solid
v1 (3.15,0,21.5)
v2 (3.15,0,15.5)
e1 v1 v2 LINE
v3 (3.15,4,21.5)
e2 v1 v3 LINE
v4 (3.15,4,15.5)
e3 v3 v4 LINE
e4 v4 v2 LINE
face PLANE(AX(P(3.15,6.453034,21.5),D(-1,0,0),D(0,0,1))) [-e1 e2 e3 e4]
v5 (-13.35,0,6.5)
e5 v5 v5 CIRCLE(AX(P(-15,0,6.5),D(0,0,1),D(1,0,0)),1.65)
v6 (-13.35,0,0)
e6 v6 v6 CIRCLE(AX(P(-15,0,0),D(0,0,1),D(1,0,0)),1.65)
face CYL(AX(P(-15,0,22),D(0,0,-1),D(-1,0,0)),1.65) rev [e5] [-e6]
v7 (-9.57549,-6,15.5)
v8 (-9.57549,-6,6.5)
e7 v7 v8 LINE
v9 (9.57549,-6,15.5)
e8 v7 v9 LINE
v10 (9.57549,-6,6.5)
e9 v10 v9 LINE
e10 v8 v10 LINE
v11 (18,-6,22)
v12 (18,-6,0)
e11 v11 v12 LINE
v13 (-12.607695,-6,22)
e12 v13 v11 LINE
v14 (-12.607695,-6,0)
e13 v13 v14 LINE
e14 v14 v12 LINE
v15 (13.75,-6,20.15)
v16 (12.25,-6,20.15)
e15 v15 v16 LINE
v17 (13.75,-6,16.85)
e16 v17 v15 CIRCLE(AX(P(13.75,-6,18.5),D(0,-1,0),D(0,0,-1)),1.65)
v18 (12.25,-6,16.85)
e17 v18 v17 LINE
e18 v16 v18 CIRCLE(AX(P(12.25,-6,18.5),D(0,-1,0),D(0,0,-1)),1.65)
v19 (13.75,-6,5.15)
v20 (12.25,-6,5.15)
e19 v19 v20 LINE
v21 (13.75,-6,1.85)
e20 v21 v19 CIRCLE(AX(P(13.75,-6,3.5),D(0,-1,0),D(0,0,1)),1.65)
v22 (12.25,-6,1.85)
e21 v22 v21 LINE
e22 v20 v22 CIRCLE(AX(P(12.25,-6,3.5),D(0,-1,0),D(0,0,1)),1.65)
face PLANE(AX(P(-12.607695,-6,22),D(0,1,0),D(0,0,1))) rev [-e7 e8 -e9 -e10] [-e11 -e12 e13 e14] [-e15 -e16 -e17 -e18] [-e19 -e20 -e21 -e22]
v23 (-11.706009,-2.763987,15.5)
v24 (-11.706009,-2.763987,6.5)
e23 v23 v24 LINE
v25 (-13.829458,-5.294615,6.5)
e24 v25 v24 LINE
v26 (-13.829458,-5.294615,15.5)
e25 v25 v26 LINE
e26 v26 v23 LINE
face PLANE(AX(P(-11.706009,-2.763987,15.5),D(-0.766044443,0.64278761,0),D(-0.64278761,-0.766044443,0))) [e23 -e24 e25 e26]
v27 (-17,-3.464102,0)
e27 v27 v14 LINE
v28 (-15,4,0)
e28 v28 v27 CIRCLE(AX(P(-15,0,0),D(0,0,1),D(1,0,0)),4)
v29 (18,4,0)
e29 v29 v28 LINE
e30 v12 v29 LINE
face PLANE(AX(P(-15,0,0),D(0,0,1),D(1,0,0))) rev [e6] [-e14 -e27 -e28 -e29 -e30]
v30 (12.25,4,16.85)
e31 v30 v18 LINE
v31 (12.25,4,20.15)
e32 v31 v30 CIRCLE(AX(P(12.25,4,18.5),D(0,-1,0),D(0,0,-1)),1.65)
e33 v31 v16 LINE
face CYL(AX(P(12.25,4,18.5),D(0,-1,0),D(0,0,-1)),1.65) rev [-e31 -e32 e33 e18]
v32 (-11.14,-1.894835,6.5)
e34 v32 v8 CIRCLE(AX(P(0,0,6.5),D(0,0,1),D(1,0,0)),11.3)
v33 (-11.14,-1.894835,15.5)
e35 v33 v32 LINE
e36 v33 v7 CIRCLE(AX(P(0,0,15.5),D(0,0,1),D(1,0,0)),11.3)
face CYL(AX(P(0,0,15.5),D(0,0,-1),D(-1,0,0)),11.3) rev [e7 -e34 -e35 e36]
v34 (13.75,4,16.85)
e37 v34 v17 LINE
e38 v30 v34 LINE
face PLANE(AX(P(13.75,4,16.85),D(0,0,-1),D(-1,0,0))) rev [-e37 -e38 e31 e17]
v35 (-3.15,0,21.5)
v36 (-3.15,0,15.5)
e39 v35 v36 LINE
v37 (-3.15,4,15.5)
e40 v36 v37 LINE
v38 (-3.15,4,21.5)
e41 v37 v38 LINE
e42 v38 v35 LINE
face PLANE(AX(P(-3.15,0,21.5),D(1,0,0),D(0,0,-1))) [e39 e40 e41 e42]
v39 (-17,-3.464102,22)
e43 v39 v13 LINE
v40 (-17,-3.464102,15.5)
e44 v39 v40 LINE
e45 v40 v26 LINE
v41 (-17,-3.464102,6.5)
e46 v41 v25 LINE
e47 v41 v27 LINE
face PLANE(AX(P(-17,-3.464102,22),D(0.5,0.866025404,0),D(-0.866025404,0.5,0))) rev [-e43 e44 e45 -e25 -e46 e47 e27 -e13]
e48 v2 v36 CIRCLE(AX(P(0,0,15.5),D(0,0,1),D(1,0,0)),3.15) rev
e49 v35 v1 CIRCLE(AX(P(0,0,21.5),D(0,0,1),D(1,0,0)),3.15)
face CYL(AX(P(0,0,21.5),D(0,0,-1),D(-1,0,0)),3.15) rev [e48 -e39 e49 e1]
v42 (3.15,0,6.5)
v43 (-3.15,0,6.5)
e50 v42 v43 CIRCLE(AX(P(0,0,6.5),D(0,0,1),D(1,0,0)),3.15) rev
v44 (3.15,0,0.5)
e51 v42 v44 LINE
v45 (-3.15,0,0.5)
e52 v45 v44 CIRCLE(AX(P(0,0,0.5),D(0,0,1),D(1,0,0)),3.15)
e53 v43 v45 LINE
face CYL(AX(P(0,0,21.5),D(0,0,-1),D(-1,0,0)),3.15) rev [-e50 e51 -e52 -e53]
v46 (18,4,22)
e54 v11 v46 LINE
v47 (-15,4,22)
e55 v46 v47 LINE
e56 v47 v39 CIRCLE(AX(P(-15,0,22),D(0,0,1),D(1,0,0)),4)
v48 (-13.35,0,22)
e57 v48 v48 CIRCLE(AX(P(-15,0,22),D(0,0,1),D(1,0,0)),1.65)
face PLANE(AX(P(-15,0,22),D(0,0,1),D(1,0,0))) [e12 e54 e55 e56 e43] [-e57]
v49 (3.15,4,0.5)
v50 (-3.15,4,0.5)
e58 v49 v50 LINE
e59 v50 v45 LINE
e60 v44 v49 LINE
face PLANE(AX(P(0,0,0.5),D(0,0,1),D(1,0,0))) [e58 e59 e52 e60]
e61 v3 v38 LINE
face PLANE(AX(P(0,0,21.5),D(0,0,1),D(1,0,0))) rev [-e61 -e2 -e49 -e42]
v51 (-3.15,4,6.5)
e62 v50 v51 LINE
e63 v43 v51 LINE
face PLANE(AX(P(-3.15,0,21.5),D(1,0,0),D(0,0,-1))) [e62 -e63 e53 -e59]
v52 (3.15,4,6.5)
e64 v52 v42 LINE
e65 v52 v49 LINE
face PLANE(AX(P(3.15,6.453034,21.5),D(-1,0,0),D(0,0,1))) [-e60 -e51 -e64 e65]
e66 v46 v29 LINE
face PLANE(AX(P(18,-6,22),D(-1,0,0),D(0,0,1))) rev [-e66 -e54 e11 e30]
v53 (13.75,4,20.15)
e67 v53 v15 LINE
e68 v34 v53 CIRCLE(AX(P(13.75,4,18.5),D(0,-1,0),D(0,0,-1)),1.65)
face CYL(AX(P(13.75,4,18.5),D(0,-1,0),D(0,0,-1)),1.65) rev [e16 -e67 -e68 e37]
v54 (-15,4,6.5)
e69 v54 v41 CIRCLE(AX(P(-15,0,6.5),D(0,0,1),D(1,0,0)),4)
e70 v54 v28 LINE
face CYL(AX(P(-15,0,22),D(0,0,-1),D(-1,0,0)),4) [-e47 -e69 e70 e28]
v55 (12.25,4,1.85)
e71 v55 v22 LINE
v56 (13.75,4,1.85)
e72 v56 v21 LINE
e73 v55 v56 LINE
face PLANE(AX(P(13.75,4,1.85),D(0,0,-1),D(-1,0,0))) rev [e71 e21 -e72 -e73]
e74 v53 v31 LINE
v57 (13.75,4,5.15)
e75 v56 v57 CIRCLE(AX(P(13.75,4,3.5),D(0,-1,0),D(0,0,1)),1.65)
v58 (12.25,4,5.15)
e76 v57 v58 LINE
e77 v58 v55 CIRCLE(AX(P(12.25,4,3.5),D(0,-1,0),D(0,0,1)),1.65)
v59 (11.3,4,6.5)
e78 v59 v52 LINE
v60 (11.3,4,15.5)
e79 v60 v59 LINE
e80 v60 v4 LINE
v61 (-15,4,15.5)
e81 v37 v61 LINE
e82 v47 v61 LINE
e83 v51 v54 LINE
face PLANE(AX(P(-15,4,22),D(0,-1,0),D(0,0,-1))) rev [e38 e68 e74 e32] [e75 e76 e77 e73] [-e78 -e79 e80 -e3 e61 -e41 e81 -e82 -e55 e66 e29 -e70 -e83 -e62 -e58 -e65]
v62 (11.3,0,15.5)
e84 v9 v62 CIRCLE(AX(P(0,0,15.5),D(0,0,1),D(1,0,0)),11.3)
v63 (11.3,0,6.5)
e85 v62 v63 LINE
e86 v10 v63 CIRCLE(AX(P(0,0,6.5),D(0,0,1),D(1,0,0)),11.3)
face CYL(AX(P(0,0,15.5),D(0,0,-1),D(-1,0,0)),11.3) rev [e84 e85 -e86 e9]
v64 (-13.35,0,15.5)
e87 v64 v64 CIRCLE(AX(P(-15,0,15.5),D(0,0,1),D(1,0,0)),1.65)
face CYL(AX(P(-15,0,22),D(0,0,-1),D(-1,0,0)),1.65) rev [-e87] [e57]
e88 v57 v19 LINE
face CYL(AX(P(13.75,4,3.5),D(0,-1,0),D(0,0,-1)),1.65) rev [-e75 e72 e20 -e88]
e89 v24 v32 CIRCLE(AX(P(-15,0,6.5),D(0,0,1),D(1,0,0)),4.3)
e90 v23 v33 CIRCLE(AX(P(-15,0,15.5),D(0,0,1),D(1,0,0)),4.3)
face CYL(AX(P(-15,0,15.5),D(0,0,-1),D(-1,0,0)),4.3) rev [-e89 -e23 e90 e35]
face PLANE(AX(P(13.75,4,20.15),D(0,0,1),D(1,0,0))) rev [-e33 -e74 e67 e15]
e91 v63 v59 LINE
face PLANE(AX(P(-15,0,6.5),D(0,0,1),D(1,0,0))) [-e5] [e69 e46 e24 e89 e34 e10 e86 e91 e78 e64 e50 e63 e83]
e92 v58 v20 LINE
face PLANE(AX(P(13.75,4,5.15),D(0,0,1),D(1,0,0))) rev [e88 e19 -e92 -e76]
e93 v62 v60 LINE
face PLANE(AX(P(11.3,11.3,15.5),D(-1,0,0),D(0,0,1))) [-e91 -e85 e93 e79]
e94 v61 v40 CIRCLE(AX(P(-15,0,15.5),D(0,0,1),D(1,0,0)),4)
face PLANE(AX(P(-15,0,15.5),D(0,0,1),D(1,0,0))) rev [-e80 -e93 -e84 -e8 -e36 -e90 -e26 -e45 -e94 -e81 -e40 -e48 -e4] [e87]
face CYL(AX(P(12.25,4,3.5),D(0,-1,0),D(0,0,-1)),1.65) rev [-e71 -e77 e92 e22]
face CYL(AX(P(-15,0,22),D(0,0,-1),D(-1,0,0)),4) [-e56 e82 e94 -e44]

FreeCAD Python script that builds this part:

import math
import FreeCAD as App
import Part
import Sketcher
Q = App.Units.Quantity

doc = App.newDocument("Part")
body = doc.addObject("PartDesign::Body", "Body")

sketch1 = doc.addObject("Sketcher::SketchObject", "Sketch")
body.addObject(sketch1)
sketch1.AttachmentSupport = (doc.XY_Plane, [""])
sketch1.MapMode = "FlatFace"
sketch1.addGeometry(Part.LineSegment(App.Vector(-17, -3.464102, 0), App.Vector(-12.607695, -6, 0)), False)
sketch1.addGeometry(Part.LineSegment(App.Vector(-12.607695, -6, 0), App.Vector(18, -6, 0)), False)
sketch1.addGeometry(Part.LineSegment(App.Vector(18, -6, 0), App.Vector(18, 4, 0)), False)
sketch1.addGeometry(Part.LineSegment(App.Vector(18, 4, 0), App.Vector(-15, 4, 0)), False)
sketch1.addGeometry(Part.ArcOfCircle(Part.Circle(App.Vector(-15, 0, 0), App.Vector(0, 0, 1), 4), math.radians(90), math.radians(240)), False)
sketch1.addGeometry(Part.Circle(App.Vector(-15, 0, 0), App.Vector(0, 0, 1), 1.65), False)
sketch1.addConstraint(Sketcher.Constraint("Coincident", 0, 2, 1, 1))
sketch1.addConstraint(Sketcher.Constraint("Coincident", 1, 2, 2, 1))
sketch1.addConstraint(Sketcher.Constraint("Coincident", 2, 2, 3, 1))
sketch1.addConstraint(Sketcher.Constraint("Tangent", 3, 2, 4, 1))
sketch1.addConstraint(Sketcher.Constraint("Tangent", 4, 2, 0, 1))
sketch1.addConstraint(Sketcher.Constraint("Horizontal", 1))
sketch1.addConstraint(Sketcher.Constraint("Vertical", 2))
sketch1.addConstraint(Sketcher.Constraint("Horizontal", 3))
sketch1.addConstraint(Sketcher.Constraint("Coincident", 5, 3, 4, 3))
sketch1.addConstraint(Sketcher.Constraint("PointOnObject", 4, 3, -1))
sketch1.addConstraint(Sketcher.Constraint("Radius", 4, Q("4 mm")))
sketch1.addConstraint(Sketcher.Constraint("Diameter", 5, Q("3.3 mm")))
sketch1.addConstraint(Sketcher.Constraint("DistanceX", 3, 2, 3, 1, Q("33 mm")))
sketch1.addConstraint(Sketcher.Constraint("DistanceY", 2, 1, 2, 2, Q("10 mm")))
sketch1.addConstraint(Sketcher.Constraint("Angle", 0, Q("-30 deg")))
sketch1.addConstraint(Sketcher.Constraint("DistanceX", 4, 3, -1, 1, Q("15 mm")))
pad1 = doc.addObject("PartDesign::Pad", "Pad")
body.addObject(pad1)
pad1.Profile = sketch1
pad1.Length = 22

sketch2 = doc.addObject("Sketcher::SketchObject", "Sketch001")
body.addObject(sketch2)
sketch2.AttachmentSupport = (doc.XY_Plane, [""])
sketch2.MapMode = "FlatFace"
sketch2.AttachmentOffset = App.Placement(App.Vector(0, 0, 11), App.Rotation())
sketch2.addGeometry(Part.LineSegment(App.Vector(-19.3, -11.814153, 0), App.Vector(-11.706009, -2.763987, 0)), False)
sketch2.addGeometry(Part.ArcOfCircle(Part.Circle(App.Vector(-15, 0, 0), App.Vector(0, 0, 1), 4.3), math.radians(-40), math.radians(-26.145956)), False)
sketch2.addGeometry(Part.ArcOfCircle(Part.Circle(App.Vector(0, 0, 0), App.Vector(0, 0, 1), 11.3), math.radians(-170.346781), math.radians(0)), False)
sketch2.addGeometry(Part.LineSegment(App.Vector(11.3, 0, 0), App.Vector(11.3, 11.3, 0)), False)
sketch2.addGeometry(Part.LineSegment(App.Vector(11.3, 11.3, 0), App.Vector(-19.3, 11.3, 0)), False)
sketch2.addGeometry(Part.LineSegment(App.Vector(-19.3, 11.3, 0), App.Vector(-19.3, -11.814153, 0)), False)
sketch2.addConstraint(Sketcher.Constraint("Tangent", 0, 2, 1, 1))
sketch2.addConstraint(Sketcher.Constraint("Coincident", 1, 2, 2, 1))
sketch2.addConstraint(Sketcher.Constraint("Tangent", 2, 2, 3, 1))
sketch2.addConstraint(Sketcher.Constraint("Coincident", 3, 2, 4, 1))
sketch2.addConstraint(Sketcher.Constraint("Coincident", 4, 2, 5, 1))
sketch2.addConstraint(Sketcher.Constraint("Coincident", 5, 2, 0, 1))
sketch2.addConstraint(Sketcher.Constraint("Vertical", 3))
sketch2.addConstraint(Sketcher.Constraint("Horizontal", 4))
sketch2.addConstraint(Sketcher.Constraint("Vertical", 5))
sketch2.addConstraint(Sketcher.Constraint("Coincident", 2, 3, -1, 1))
sketch2.addConstraint(Sketcher.Constraint("PointOnObject", 1, 3, -1))
sketch2.addConstraint(Sketcher.Constraint("Radius", 1, Q("4.3 mm")))
sketch2.addConstraint(Sketcher.Constraint("Radius", 2, Q("11.3 mm")))
sketch2.addConstraint(Sketcher.Constraint("Angle", 0, Q("50 deg")))
sketch2.addConstraint(Sketcher.Constraint("DistanceX", 4, 2, 4, 1, Q("30.6 mm")))
sketch2.addConstraint(Sketcher.Constraint("DistanceY", 3, 1, 3, 2, Q("11.3 mm")))
sketch2.addConstraint(Sketcher.Constraint("DistanceX", 1, 3, -1, 1, Q("15 mm")))
pocket1 = doc.addObject("PartDesign::Pocket", "Pocket")
body.addObject(pocket1)
pocket1.Profile = sketch2
pocket1.Type = "TwoLengths"
pocket1.Length = 4.5
pocket1.Length2 = 4.5
pocket1.Reversed = True

sketch3 = doc.addObject("Sketcher::SketchObject", "Sketch002")
body.addObject(sketch3)
sketch3.AttachmentSupport = (doc.XY_Plane, [""])
sketch3.MapMode = "FlatFace"
sketch3.AttachmentOffset = App.Placement(App.Vector(0, 0, 11), App.Rotation())
sketch3.addGeometry(Part.LineSegment(App.Vector(-3.15, 6.453034, 0), App.Vector(-3.15, 0, 0)), False)
sketch3.addGeometry(Part.ArcOfCircle(Part.Circle(App.Vector(0, 0, 0), App.Vector(0, 0, 1), 3.15), math.radians(180), math.radians(360)), False)
sketch3.addGeometry(Part.LineSegment(App.Vector(3.15, 0, 0), App.Vector(3.15, 6.453034, 0)), False)
sketch3.addGeometry(Part.LineSegment(App.Vector(3.15, 6.453034, 0), App.Vector(-3.15, 6.453034, 0)), False)
sketch3.addConstraint(Sketcher.Constraint("Tangent", 0, 2, 1, 1))
sketch3.addConstraint(Sketcher.Constraint("Tangent", 1, 2, 2, 1))
sketch3.addConstraint(Sketcher.Constraint("Coincident", 2, 2, 3, 1))
sketch3.addConstraint(Sketcher.Constraint("Coincident", 3, 2, 0, 1))
sketch3.addConstraint(Sketcher.Constraint("Vertical", 0))
sketch3.addConstraint(Sketcher.Constraint("Vertical", 2))
sketch3.addConstraint(Sketcher.Constraint("Horizontal", 3))
sketch3.addConstraint(Sketcher.Constraint("Coincident", 1, 3, -1, 1))
sketch3.addConstraint(Sketcher.Constraint("Radius", 1, Q("3.15 mm")))
sketch3.addConstraint(Sketcher.Constraint("DistanceY", 0, 2, 0, 1, Q("6.453034 mm")))
pocket2 = doc.addObject("PartDesign::Pocket", "Pocket001")
body.addObject(pocket2)
pocket2.Profile = sketch3
pocket2.Type = "TwoLengths"
pocket2.Length = 10.5
pocket2.Length2 = 10.5
pocket2.Reversed = True

sketch4 = doc.addObject("Sketcher::SketchObject", "Sketch003")
body.addObject(sketch4)
sketch4.AttachmentSupport = (doc.XZ_Plane, [""])
sketch4.MapMode = "FlatFace"
sketch4.AttachmentOffset = App.Placement(App.Vector(0, 0, 6), App.Rotation())
sketch4.addGeometry(Part.LineSegment(App.Vector(12.25, 16.85, 0), App.Vector(13.75, 16.85, 0)), False)
sketch4.addGeometry(Part.ArcOfCircle(Part.Circle(App.Vector(13.75, 18.5, 0), App.Vector(0, 0, 1), 1.65), math.radians(-90), math.radians(90)), False)
sketch4.addGeometry(Part.LineSegment(App.Vector(13.75, 20.15, 0), App.Vector(12.25, 20.15, 0)), False)
sketch4.addGeometry(Part.ArcOfCircle(Part.Circle(App.Vector(12.25, 18.5, 0), App.Vector(0, 0, 1), 1.65), math.radians(90), math.radians(270)), False)
sketch4.addGeometry(Part.LineSegment(App.Vector(13.75, 5.15, 0), App.Vector(12.25, 5.15, 0)), False)
sketch4.addGeometry(Part.ArcOfCircle(Part.Circle(App.Vector(12.25, 3.5, 0), App.Vector(0, 0, 1), 1.65), math.radians(90), math.radians(270)), False)
sketch4.addGeometry(Part.LineSegment(App.Vector(12.25, 1.85, 0), App.Vector(13.75, 1.85, 0)), False)
sketch4.addGeometry(Part.ArcOfCircle(Part.Circle(App.Vector(13.75, 3.5, 0), App.Vector(0, 0, 1), 1.65), math.radians(-90), math.radians(90)), False)
sketch4.addConstraint(Sketcher.Constraint("Tangent", 0, 2, 1, 1))
sketch4.addConstraint(Sketcher.Constraint("Tangent", 1, 2, 2, 1))
sketch4.addConstraint(Sketcher.Constraint("Tangent", 2, 2, 3, 1))
sketch4.addConstraint(Sketcher.Constraint("Tangent", 3, 2, 0, 1))
sketch4.addConstraint(Sketcher.Constraint("Tangent", 4, 2, 5, 1))
sketch4.addConstraint(Sketcher.Constraint("Tangent", 5, 2, 6, 1))
sketch4.addConstraint(Sketcher.Constraint("Tangent", 6, 2, 7, 1))
sketch4.addConstraint(Sketcher.Constraint("Tangent", 7, 2, 4, 1))
sketch4.addConstraint(Sketcher.Constraint("Horizontal", 0))
sketch4.addConstraint(Sketcher.Constraint("Horizontal", 2))
sketch4.addConstraint(Sketcher.Constraint("Horizontal", 4))
sketch4.addConstraint(Sketcher.Constraint("Horizontal", 6))
sketch4.addConstraint(Sketcher.Constraint("Equal", 3, 5))
sketch4.addConstraint(Sketcher.Constraint("Vertical", 3, 3, 5, 3))
sketch4.addConstraint(Sketcher.Constraint("Vertical", 1, 3, 7, 3))
sketch4.addConstraint(Sketcher.Constraint("Radius", 1, Q("1.65 mm")))
sketch4.addConstraint(Sketcher.Constraint("DistanceX", 0, 1, 0, 2, Q("1.5 mm")))
sketch4.addConstraint(Sketcher.Constraint("DistanceY", 5, 3, 3, 3, Q("15 mm")))
sketch4.addConstraint(Sketcher.Constraint("DistanceY", -1, 1, 1, 3, Q("18.5 mm")))
sketch4.addConstraint(Sketcher.Constraint("DistanceX", -1, 1, 1, 3, Q("13.75 mm")))
pocket3 = doc.addObject("PartDesign::Pocket", "Pocket002")
body.addObject(pocket3)
pocket3.Profile = sketch4
pocket3.Type = "ThroughAll"

doc.recompute()
